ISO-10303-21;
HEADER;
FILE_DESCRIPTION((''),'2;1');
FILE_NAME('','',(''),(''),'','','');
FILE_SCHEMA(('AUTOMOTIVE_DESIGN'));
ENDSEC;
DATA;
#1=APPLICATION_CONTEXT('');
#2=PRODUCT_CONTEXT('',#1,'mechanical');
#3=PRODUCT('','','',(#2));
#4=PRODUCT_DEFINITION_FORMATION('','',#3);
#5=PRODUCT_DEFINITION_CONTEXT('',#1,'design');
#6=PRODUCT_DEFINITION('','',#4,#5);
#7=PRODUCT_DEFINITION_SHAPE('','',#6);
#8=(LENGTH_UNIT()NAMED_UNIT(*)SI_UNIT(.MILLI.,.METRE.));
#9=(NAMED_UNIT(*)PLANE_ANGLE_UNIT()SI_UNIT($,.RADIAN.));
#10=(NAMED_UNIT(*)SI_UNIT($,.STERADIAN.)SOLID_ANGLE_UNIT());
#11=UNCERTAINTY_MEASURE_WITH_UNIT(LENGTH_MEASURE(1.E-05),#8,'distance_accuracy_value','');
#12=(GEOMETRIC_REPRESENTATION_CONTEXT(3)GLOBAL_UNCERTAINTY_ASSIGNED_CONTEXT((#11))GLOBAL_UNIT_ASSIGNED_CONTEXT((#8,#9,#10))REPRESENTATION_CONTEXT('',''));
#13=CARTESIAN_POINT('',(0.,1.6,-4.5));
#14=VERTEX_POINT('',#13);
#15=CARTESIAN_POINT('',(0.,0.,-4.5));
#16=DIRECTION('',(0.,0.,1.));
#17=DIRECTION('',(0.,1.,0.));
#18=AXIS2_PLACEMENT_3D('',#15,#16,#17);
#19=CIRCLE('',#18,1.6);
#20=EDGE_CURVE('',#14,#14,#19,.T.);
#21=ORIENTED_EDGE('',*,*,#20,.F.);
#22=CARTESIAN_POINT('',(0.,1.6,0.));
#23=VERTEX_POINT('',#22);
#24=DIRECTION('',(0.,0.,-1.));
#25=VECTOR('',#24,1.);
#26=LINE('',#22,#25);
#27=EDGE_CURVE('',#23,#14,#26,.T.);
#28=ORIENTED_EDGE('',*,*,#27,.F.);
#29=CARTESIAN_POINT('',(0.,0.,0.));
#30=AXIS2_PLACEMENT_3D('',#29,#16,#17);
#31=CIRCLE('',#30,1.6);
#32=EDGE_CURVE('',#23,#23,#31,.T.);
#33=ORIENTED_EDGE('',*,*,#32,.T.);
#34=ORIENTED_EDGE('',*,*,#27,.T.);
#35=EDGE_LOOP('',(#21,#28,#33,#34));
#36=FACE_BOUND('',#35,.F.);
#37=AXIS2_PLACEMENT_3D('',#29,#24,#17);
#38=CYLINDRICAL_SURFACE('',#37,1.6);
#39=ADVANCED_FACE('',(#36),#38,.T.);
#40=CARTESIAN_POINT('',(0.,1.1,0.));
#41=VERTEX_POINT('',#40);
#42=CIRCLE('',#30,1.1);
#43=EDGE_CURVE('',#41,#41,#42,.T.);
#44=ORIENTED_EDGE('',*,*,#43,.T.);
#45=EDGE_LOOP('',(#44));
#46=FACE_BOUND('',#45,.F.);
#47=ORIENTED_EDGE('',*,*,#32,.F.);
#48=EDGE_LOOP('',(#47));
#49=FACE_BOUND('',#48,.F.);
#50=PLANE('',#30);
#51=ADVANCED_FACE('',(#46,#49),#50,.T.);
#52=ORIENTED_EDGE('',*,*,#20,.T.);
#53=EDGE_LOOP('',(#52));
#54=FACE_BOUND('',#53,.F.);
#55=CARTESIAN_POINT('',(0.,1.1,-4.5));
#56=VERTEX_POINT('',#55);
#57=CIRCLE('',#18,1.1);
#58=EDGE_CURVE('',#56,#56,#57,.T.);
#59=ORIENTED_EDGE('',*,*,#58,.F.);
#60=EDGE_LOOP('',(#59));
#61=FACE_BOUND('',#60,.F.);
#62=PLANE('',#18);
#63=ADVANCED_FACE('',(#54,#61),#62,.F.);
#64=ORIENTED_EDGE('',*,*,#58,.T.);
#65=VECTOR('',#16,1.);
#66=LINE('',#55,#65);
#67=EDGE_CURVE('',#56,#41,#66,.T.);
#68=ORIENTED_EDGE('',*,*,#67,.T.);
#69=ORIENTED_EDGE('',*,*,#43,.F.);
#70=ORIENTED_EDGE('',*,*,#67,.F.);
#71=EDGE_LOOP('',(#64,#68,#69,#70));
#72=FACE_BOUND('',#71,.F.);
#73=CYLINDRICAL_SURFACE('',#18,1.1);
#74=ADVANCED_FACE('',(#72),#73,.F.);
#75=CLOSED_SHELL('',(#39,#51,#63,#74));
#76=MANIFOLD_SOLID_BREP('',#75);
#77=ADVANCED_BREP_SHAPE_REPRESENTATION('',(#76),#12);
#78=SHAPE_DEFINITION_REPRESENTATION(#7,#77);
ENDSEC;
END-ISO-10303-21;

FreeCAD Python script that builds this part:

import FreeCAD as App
import Part
import Sketcher
Q = App.Units.Quantity

doc = App.newDocument("Part")
body = doc.addObject("PartDesign::Body", "Body")

# Sketch on YZ plane
sketch1 = doc.addObject("Sketcher::SketchObject", "Sketch")
body.addObject(sketch1)
sketch1.AttachmentSupport = (doc.YZ_Plane, [""])
sketch1.MapMode = "FlatFace"
sketch1.addGeometry(Part.LineSegment(App.Vector(1.6, 0, 0), App.Vector(1.1, 0, 0)), False)
sketch1.addGeometry(Part.LineSegment(App.Vector(1.1, 0, 0), App.Vector(1.1, -4.5, 0)), False)
sketch1.addGeometry(Part.LineSegment(App.Vector(1.1, -4.5, 0), App.Vector(1.6, -4.5, 0)), False)
sketch1.addGeometry(Part.LineSegment(App.Vector(1.6, -4.5, 0), App.Vector(1.6, 0, 0)), False)
sketch1.addConstraint(Sketcher.Constraint("Coincident", 0, 2, 1, 1))
sketch1.addConstraint(Sketcher.Constraint("Coincident", 1, 2, 2, 1))
sketch1.addConstraint(Sketcher.Constraint("Coincident", 2, 2, 3, 1))
sketch1.addConstraint(Sketcher.Constraint("Coincident", 3, 2, 0, 1))
sketch1.addConstraint(Sketcher.Constraint("Horizontal", 0))
sketch1.addConstraint(Sketcher.Constraint("Vertical", 1))
sketch1.addConstraint(Sketcher.Constraint("Horizontal", 2))
sketch1.addConstraint(Sketcher.Constraint("Vertical", 3))
sketch1.addConstraint(Sketcher.Constraint("PointOnObject", 0, 2, -1))
sketch1.addConstraint(Sketcher.Constraint("DistanceY", 1, 2, 1, 1, Q("4.5 mm")))
sketch1.addConstraint(Sketcher.Constraint("DistanceX", -1, 1, 0, 2, Q("1.1 mm")))
sketch1.addConstraint(Sketcher.Constraint("DistanceX", -1, 1, 2, 2, Q("1.6 mm")))
revolution = doc.addObject("PartDesign::Revolution", "Revolution")
body.addObject(revolution)
revolution.Profile = sketch1
revolution.ReferenceAxis = (sketch1, ["V_Axis"])
revolution.Angle = 360

doc.recompute()
